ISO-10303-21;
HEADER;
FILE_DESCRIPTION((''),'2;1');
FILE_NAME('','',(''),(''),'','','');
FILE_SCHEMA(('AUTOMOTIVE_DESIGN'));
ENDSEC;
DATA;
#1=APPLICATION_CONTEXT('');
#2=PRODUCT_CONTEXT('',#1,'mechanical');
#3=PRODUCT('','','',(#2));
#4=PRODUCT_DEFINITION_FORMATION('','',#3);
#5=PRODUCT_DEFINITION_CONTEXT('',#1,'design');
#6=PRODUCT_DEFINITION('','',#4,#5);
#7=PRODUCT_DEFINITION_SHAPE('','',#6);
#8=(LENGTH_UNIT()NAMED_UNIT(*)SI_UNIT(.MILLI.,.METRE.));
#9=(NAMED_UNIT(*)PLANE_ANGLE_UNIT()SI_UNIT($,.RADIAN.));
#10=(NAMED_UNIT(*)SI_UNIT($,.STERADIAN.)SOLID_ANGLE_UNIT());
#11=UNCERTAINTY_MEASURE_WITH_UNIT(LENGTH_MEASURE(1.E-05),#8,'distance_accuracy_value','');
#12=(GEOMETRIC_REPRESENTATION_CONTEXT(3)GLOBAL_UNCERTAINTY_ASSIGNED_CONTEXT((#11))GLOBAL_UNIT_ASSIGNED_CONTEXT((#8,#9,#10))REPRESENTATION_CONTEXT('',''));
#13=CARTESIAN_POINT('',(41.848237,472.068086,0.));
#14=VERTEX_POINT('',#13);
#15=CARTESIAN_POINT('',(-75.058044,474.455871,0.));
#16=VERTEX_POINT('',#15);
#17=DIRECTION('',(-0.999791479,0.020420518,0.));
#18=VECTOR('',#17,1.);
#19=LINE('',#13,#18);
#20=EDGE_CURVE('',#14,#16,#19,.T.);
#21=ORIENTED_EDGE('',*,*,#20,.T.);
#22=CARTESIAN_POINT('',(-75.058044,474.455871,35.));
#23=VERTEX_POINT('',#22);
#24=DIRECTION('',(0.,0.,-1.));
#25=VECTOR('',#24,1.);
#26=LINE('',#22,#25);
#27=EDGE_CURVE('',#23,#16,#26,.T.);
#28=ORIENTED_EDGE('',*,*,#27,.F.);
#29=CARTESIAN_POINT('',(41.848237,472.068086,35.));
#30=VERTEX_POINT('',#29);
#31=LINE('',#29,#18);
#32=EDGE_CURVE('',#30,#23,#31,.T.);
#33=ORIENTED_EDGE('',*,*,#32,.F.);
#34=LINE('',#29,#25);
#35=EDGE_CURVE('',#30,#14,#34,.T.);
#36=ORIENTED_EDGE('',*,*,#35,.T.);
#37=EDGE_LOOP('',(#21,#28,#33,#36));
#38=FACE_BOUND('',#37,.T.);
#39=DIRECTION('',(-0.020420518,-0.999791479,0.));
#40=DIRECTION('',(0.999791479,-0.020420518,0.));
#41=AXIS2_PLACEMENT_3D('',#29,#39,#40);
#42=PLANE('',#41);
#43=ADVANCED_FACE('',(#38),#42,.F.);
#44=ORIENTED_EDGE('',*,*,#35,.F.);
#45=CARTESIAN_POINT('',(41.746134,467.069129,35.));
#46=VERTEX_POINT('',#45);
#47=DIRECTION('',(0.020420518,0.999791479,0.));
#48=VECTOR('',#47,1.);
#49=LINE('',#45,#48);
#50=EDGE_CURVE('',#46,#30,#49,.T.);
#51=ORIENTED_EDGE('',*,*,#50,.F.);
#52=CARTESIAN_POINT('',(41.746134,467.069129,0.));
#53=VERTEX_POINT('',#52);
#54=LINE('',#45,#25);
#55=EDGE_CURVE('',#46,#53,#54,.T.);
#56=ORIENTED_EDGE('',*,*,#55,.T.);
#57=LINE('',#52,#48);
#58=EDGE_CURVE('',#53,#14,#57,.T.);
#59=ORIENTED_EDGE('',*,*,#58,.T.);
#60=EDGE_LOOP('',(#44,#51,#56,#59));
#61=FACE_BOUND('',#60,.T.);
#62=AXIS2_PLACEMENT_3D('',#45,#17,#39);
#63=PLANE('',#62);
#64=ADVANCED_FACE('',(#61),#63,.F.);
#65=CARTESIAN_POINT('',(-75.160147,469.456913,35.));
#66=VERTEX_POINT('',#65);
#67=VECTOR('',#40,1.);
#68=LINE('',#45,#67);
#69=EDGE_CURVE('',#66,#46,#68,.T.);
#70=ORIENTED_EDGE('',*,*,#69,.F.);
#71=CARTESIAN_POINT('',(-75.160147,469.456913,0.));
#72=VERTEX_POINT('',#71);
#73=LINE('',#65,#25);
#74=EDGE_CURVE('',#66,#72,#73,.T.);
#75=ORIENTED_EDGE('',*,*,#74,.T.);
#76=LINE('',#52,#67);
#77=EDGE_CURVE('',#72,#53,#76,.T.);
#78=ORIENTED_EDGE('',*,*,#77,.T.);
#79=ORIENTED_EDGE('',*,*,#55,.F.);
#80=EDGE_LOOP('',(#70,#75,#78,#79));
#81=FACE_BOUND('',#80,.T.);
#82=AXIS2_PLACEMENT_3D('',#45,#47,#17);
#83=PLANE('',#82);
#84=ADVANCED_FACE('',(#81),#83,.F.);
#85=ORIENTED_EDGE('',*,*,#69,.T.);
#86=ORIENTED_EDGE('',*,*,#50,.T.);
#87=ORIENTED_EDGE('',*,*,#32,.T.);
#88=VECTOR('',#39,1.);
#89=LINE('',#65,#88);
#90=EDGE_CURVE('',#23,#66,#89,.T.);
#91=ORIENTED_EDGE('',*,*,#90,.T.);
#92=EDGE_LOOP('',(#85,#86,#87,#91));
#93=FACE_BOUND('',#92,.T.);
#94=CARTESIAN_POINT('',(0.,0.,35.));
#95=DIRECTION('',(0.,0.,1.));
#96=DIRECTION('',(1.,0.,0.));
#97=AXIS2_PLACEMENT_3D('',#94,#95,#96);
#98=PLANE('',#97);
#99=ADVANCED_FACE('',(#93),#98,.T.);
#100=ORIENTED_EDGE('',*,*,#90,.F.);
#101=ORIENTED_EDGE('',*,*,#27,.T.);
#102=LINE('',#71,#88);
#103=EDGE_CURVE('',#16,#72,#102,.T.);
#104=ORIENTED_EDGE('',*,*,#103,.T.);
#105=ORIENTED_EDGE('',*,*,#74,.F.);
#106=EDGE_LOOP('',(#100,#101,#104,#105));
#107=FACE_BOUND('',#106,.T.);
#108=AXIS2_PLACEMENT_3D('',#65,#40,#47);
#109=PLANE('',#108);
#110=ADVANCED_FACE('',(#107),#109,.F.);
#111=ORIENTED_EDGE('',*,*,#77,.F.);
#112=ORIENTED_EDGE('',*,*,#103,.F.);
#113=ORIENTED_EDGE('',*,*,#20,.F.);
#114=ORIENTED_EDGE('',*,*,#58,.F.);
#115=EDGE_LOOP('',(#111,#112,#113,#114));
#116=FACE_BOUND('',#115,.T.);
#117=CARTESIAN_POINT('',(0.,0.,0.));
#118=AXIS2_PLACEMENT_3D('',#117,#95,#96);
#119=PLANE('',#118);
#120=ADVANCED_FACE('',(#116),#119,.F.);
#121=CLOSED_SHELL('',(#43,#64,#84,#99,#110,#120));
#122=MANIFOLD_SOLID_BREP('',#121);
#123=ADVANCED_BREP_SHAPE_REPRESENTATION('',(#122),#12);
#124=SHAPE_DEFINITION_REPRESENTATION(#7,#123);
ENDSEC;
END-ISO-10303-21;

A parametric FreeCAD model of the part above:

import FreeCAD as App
import Part
import Sketcher

V = App.Vector
Q = App.Units.Quantity


def add_polygon(sketch, points):
    """Adds a closed chain of lines whose ends are joined by coincident constraints."""
    first, n = sketch.GeometryCount, len(points)
    for a, b in zip(points, points[1:] + points[:1]):
        sketch.addGeometry(Part.LineSegment(App.Vector(*a, 0), App.Vector(*b, 0)), False)
    for i in range(n):
        sketch.addConstraint(Sketcher.Constraint("Coincident", first + i, 2, first + (i + 1) % n, 1))

doc = App.newDocument("Part")
body = doc.addObject("PartDesign::Body", "Body")

sketch1 = doc.addObject("Sketcher::SketchObject", "Sketch")
body.addObject(sketch1)
sketch1.AttachmentSupport = (doc.XY_Plane, [""])
sketch1.MapMode = "FlatFace"
add_polygon(sketch1, [(-75.160147, 469.456913), (41.746134, 467.069128), (41.848237, 472.068086), (-75.058045, 474.45587)])
sketch1.addConstraint(Sketcher.Constraint("Perpendicular", 0, 1))
sketch1.addConstraint(Sketcher.Constraint("Perpendicular", 1, 2))
sketch1.addConstraint(Sketcher.Constraint("Perpendicular", 2, 3))
sketch1.addConstraint(Sketcher.Constraint("Distance", 1, Q("5 mm")))
sketch1.addConstraint(Sketcher.Constraint("DistanceY", -1, 1, 0, 2, Q("467.069128 mm")))
sketch1.addConstraint(Sketcher.Constraint("DistanceY", -1, 1, 2, 2, Q("474.45587 mm")))
sketch1.addConstraint(Sketcher.Constraint("DistanceX", 2, 2, 1, 2, Q("116.906281 mm")))
sketch1.addConstraint(Sketcher.Constraint("DistanceX", -1, 1, 0, 2, Q("41.746134 mm")))
pad1 = doc.addObject("PartDesign::Pad", "Pad")
body.addObject(pad1)
pad1.Profile = sketch1
pad1.Length = 35

doc.recompute()
